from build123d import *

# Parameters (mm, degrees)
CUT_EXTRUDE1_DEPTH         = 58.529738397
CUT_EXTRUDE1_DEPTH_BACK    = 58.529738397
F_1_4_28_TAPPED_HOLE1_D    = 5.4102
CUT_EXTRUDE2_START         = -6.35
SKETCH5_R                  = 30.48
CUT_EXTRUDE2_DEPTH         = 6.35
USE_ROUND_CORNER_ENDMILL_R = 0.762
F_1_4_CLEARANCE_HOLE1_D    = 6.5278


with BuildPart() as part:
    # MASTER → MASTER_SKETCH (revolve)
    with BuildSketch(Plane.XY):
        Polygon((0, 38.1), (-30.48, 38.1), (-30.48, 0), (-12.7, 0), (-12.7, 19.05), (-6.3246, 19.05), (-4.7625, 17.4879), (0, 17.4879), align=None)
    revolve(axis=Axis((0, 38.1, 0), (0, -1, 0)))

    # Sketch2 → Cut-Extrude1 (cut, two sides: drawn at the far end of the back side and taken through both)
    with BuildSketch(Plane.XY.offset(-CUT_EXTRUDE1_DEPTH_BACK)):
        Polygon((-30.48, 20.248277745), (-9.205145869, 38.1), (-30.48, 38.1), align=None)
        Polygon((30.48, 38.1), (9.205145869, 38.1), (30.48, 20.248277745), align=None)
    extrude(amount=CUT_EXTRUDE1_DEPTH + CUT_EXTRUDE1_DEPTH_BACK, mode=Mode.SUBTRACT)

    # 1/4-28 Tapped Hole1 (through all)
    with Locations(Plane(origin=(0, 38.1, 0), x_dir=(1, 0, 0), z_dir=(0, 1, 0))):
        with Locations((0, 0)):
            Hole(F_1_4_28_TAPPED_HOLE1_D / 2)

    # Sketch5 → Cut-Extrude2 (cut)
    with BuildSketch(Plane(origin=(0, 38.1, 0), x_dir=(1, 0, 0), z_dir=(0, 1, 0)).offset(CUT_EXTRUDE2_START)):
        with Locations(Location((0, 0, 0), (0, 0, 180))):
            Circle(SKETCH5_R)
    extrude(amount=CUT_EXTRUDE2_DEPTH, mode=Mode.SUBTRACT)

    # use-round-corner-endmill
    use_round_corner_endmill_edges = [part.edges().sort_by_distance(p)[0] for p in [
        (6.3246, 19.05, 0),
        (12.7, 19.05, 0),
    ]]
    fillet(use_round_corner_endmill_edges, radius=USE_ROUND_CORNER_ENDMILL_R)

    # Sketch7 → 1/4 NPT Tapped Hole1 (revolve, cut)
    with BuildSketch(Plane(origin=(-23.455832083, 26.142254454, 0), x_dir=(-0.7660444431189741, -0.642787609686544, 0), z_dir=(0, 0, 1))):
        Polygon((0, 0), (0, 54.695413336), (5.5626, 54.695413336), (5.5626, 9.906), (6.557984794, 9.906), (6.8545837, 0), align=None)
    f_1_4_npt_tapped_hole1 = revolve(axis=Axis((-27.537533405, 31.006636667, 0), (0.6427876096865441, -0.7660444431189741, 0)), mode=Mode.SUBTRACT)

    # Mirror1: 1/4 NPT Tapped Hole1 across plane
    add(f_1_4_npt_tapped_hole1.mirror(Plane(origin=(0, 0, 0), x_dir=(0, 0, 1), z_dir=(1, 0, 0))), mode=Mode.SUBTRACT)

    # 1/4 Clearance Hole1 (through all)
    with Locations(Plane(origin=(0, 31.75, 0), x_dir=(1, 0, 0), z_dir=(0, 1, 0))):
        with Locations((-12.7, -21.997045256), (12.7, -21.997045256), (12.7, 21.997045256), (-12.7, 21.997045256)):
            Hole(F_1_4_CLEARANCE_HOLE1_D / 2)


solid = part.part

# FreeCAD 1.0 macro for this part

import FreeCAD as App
import Part
import Sketcher

V = App.Vector
Q = App.Units.Quantity


def edges_at(feature, points):
    """Names of the edges that pass closest to the given points."""
    edges = feature.Shape.Edges
    near = lambda p: min(range(len(edges)), key=lambda i: edges[i].distToShape(Part.Vertex(*p))[0])
    return sorted({f"Edge{near(p) + 1}" for p in points})

doc = App.newDocument("Part")
body = doc.addObject("PartDesign::Body", "Body")

# Sketch on XY plane
sketch1 = body.newObject("Sketcher::SketchObject", "Sketch")
sketch1.AttachmentSupport = (doc.getObject("XY_Plane"), [""])
sketch1.MapMode = "FlatFace"
sketch1.addGeometry([
    Part.LineSegment(V(0, 38.1, 0), V(-30.5, 38.1, 0)),  # 0
    Part.LineSegment(V(-30.5, 38.1, 0), V(-30.5, 0, 0)),  # 1
    Part.LineSegment(V(-30.5, 0, 0), V(-12.7, 0, 0)),  # 2
    Part.LineSegment(V(-12.7, 0, 0), V(-12.7, 19.1, 0)),  # 3
    Part.LineSegment(V(-12.7, 19.1, 0), V(-6.3, 19.1, 0)),  # 4
    Part.LineSegment(V(-6.3, 19.1, 0), V(-4.8, 17.5, 0)),  # 5
    Part.LineSegment(V(-4.8, 17.5, 0), V(0, 17.5, 0)),  # 6
    Part.LineSegment(V(0, 17.5, 0), V(0, 38.1, 0)),  # 7
], False)
sketch1.addConstraint([
    Sketcher.Constraint("Coincident", 0, 2, 1, 1),
    Sketcher.Constraint("Coincident", 1, 2, 2, 1),
    Sketcher.Constraint("Coincident", 2, 2, 3, 1),
    Sketcher.Constraint("Coincident", 3, 2, 4, 1),
    Sketcher.Constraint("Coincident", 4, 2, 5, 1),
    Sketcher.Constraint("Coincident", 5, 2, 6, 1),
    Sketcher.Constraint("Coincident", 6, 2, 7, 1),
    Sketcher.Constraint("Coincident", 7, 2, 0, 1),
    Sketcher.Constraint("Horizontal", 0),
    Sketcher.Constraint("Vertical", 1),
    Sketcher.Constraint("Horizontal", 2),
    Sketcher.Constraint("Vertical", 3),
    Sketcher.Constraint("Horizontal", 4),
    Sketcher.Constraint("Horizontal", 6),
    Sketcher.Constraint("Vertical", 7),
    Sketcher.Constraint("PointOnObject", 1, 2, -1),
    Sketcher.Constraint("PointOnObject", 6, 2, -2),
    Sketcher.Constraint("DistanceX", 0, 2, 0, 1, Q("1.2 in")),
    Sketcher.Constraint("DistanceX", 2, 1, 2, 2, Q("0.7 in")),
    Sketcher.Constraint("DistanceY", 1, 2, 1, 1, Q("1.5 in")),
    Sketcher.Constraint("Angle", 5, Q("-45 deg")),
    Sketcher.Constraint("DistanceY", 3, 1, 3, 2, Q("0.75 in")),
    Sketcher.Constraint("DistanceX", 4, 1, 4, 2, Q("0.251 in")),
    Sketcher.Constraint("DistanceX", 6, 1, 6, 2, Q("0.1875 in")),
])
revolution = body.newObject("PartDesign::Revolution", "Revolution")
revolution.Profile = sketch1
revolution.ReferenceAxis = (sketch1, ["V_Axis"])
revolution.Angle = 360

# Sketch on XY plane
sketch2 = body.newObject("Sketcher::SketchObject", "Sketch001")
sketch2.AttachmentSupport = (doc.getObject("XY_Plane"), [""])
sketch2.MapMode = "FlatFace"
sketch2.addGeometry([
    Part.LineSegment(V(-30, 20, 0), V(-9, 38, 0)),  # 0
    Part.LineSegment(V(-9, 38, 0), V(-30, 38, 0)),  # 1
    Part.LineSegment(V(-30, 38, 0), V(-30, 20, 0)),  # 2
    Part.LineSegment(V(30, 38, 0), V(9, 38, 0)),  # 3
    Part.LineSegment(V(9, 38, 0), V(30, 20, 0)),  # 4
    Part.LineSegment(V(30, 20, 0), V(30, 38, 0)),  # 5
], False)
sketch2.addConstraint([
    Sketcher.Constraint("Coincident", 0, 2, 1, 1),
    Sketcher.Constraint("Coincident", 1, 2, 2, 1),
    Sketcher.Constraint("Coincident", 2, 2, 0, 1),
    Sketcher.Constraint("Coincident", 3, 2, 4, 1),
    Sketcher.Constraint("Coincident", 4, 2, 5, 1),
    Sketcher.Constraint("Coincident", 5, 2, 3, 1),
    Sketcher.Constraint("Horizontal", 1),
    Sketcher.Constraint("Vertical", 2),
    Sketcher.Constraint("Horizontal", 3),
    Sketcher.Constraint("Vertical", 5),
    Sketcher.Constraint("Symmetric", 0, 2, 3, 2, -2),
    Sketcher.Constraint("Symmetric", 2, 2, 4, 2, -2),
    Sketcher.Constraint("Angle", 0, Q("40 deg")),
    Sketcher.Constraint("DistanceY", -1, 1, 0, 2, Q("1.5 in")),
    Sketcher.Constraint("DistanceX", 1, 2, -1, 1, Q("1.2 in")),
    Sketcher.Constraint("Distance", 0, 27.77235),
])
pocket1 = body.newObject("PartDesign::Pocket", "Pocket")
pocket1.Profile = sketch2
pocket1.Type = "ThroughAll"
pocket1.Midplane = True

# Sketch on XZ plane
sketch3 = body.newObject("Sketcher::SketchObject", "Sketch002")
sketch3.AttachmentSupport = (doc.getObject("XZ_Plane"), [""])
sketch3.MapMode = "FlatFace"
sketch3.AttachmentOffset = App.Placement(V(0, 0, -1.5 * 25.4), App.Rotation())
sketch3.addGeometry(Part.Circle(V(0, 0, 0), V(0, 0, 1), 2.7), False)
sketch3.addConstraint([
    Sketcher.Constraint("Coincident", 0, 3, -1, 1),
    Sketcher.Constraint("Diameter", 0, Q("0.213 in")),
])
doc.recompute()
hole = body.newObject("PartDesign::Hole", "Hole")
hole.Profile = sketch3
hole.ThreadType = "None"
hole.Diameter = Q("0.213 in")
hole.DepthType = "ThroughAll"
hole.Reversed = True

# Sketch on XZ plane
sketch4 = body.newObject("Sketcher::SketchObject", "Sketch003")
sketch4.AttachmentSupport = (doc.getObject("XZ_Plane"), [""])
sketch4.MapMode = "FlatFace"
sketch4.AttachmentOffset = App.Placement(V(0, 0, -1.25 * 25.4), App.Rotation())
sketch4.addGeometry(Part.Circle(V(0, 0, 0), V(0, 0, 1), 30), False)
sketch4.addConstraint([
    Sketcher.Constraint("Coincident", 0, 3, -1, 1),
    Sketcher.Constraint("Diameter", 0, Q("2.4 in")),
])
pocket2 = body.newObject("PartDesign::Pocket", "Pocket001")
pocket2.Profile = sketch4
pocket2.Length = Q("0.25 in")
doc.recompute()

fillet = body.newObject("PartDesign::Fillet", "Fillet")
fillet.Base = (pocket2, edges_at(pocket2, [(6.325, 19.05, 0), (12.7, 19.05, 0)]))
fillet.Radius = Q("0.03 in")

# Sketch on XY plane
sketch5 = body.newObject("Sketcher::SketchObject", "Sketch004")
sketch5.AttachmentSupport = (doc.getObject("XY_Plane"), [""])
sketch5.MapMode = "FlatFace"
sketch5.addGeometry([
    Part.LineSegment(V(11.7, -15.8, 0), V(-23.5, 26.1, 0)),  # 0
    Part.LineSegment(V(-23.5, 26.1, 0), V(-28.7, 21.7, 0)),  # 1
    Part.LineSegment(V(-28.7, 21.7, 0), V(-22.1, 14.3, 0)),  # 2
    Part.LineSegment(V(-22.1, 14.3, 0), V(-21.3, 15, 0)),  # 3
    Part.LineSegment(V(-21.3, 15, 0), V(7.4, -19.3, 0)),  # 4
    Part.LineSegment(V(7.4, -19.3, 0), V(11.7, -15.8, 0)),  # 5
], False)
sketch5.addGeometry(Part.LineSegment(V(-23.5, 26.1, 0), V(11.7, -15.8, 0)), True)  # axis
sketch5.addConstraint([
    Sketcher.Constraint("Coincident", 0, 2, 1, 1),
    Sketcher.Constraint("Coincident", 1, 2, 2, 1),
    Sketcher.Constraint("Coincident", 2, 2, 3, 1),
    Sketcher.Constraint("Coincident", 3, 2, 4, 1),
    Sketcher.Constraint("Coincident", 4, 2, 5, 1),
    Sketcher.Constraint("Coincident", 5, 2, 0, 1),
    Sketcher.Constraint("Coincident", 6, 1, 0, 2),
    Sketcher.Constraint("Coincident", 6, 2, 5, 2),
    Sketcher.Constraint("Perpendicular", 0, 1),
    Sketcher.Constraint("Parallel", 1, 3),
    Sketcher.Constraint("Perpendicular", 3, 4),
    Sketcher.Constraint("Perpendicular", 4, 5),
    Sketcher.Constraint("Angle", 0, Q("130 deg")),
    Sketcher.Constraint("Distance", 5, Q("0.219 in")),
    Sketcher.Constraint("DistanceX", -1, 1, 5, 2, 11.701702),
    Sketcher.Constraint("Distance", 2, 9.910439),
    Sketcher.Constraint("DistanceY", 1, 2, 0, 2, 4.406041),
    Sketcher.Constraint("DistanceX", 2, 2, 3, 2, 0.762509),
    Sketcher.Constraint("DistanceX", 3, 2, 4, 2, 28.79008),
    Sketcher.Constraint("DistanceY", -1, 1, 0, 2, 26.142254),
])
groove = body.newObject("PartDesign::Groove", "Groove")
groove.Profile = sketch5
groove.ReferenceAxis = (sketch5, ["Axis0"])
groove.Angle = 360
doc.recompute()

mirrored = body.newObject("PartDesign::Mirrored", "Mirrored")
mirrored.Originals = [groove]
mirrored.MirrorPlane = (doc.getObject("YZ_Plane"), [""])
body.Tip = mirrored

# Sketch on XZ plane
sketch6 = body.newObject("Sketcher::SketchObject", "Sketch005")
sketch6.AttachmentSupport = (doc.getObject("XZ_Plane"), [""])
sketch6.MapMode = "FlatFace"
sketch6.AttachmentOffset = App.Placement(V(0, 0, -1.25 * 25.4), App.Rotation())
sketch6.addGeometry([
    Part.Circle(V(-12.7, 22, 0), V(0, 0, 1), 3.3),
    Part.Circle(V(12.7, 22, 0), V(0, 0, 1), 3.3),
    Part.Circle(V(12.7, -22, 0), V(0, 0, 1), 3.3),
    Part.Circle(V(-12.7, -22, 0), V(0, 0, 1), 3.3),
], False)
sketch6.addConstraint([
    Sketcher.Constraint("Equal", 0, 1),
    Sketcher.Constraint("Equal", 1, 2),
    Sketcher.Constraint("Equal", 2, 3),
    Sketcher.Constraint("Symmetric", 0, 3, 2, 3, -1, 1),
    Sketcher.Constraint("Symmetric", 1, 3, 3, 3, -1, 1),
    Sketcher.Constraint("Symmetric", 0, 3, 1, 3, -2),
    Sketcher.Constraint("Diameter", 0, Q("0.257 in")),
    Sketcher.Constraint("DistanceX", 0, 3, 1, 3, Q("1 in")),
    Sketcher.Constraint("DistanceY", 2, 3, 1, 3, 43.994091),
])
doc.recompute()
hole2 = body.newObject("PartDesign::Hole", "Hole001")
hole2.Profile = sketch6
hole2.ThreadType = "None"
hole2.Diameter = Q("0.257 in")
hole2.DepthType = "ThroughAll"
hole2.Reversed = True

doc.recompute()
